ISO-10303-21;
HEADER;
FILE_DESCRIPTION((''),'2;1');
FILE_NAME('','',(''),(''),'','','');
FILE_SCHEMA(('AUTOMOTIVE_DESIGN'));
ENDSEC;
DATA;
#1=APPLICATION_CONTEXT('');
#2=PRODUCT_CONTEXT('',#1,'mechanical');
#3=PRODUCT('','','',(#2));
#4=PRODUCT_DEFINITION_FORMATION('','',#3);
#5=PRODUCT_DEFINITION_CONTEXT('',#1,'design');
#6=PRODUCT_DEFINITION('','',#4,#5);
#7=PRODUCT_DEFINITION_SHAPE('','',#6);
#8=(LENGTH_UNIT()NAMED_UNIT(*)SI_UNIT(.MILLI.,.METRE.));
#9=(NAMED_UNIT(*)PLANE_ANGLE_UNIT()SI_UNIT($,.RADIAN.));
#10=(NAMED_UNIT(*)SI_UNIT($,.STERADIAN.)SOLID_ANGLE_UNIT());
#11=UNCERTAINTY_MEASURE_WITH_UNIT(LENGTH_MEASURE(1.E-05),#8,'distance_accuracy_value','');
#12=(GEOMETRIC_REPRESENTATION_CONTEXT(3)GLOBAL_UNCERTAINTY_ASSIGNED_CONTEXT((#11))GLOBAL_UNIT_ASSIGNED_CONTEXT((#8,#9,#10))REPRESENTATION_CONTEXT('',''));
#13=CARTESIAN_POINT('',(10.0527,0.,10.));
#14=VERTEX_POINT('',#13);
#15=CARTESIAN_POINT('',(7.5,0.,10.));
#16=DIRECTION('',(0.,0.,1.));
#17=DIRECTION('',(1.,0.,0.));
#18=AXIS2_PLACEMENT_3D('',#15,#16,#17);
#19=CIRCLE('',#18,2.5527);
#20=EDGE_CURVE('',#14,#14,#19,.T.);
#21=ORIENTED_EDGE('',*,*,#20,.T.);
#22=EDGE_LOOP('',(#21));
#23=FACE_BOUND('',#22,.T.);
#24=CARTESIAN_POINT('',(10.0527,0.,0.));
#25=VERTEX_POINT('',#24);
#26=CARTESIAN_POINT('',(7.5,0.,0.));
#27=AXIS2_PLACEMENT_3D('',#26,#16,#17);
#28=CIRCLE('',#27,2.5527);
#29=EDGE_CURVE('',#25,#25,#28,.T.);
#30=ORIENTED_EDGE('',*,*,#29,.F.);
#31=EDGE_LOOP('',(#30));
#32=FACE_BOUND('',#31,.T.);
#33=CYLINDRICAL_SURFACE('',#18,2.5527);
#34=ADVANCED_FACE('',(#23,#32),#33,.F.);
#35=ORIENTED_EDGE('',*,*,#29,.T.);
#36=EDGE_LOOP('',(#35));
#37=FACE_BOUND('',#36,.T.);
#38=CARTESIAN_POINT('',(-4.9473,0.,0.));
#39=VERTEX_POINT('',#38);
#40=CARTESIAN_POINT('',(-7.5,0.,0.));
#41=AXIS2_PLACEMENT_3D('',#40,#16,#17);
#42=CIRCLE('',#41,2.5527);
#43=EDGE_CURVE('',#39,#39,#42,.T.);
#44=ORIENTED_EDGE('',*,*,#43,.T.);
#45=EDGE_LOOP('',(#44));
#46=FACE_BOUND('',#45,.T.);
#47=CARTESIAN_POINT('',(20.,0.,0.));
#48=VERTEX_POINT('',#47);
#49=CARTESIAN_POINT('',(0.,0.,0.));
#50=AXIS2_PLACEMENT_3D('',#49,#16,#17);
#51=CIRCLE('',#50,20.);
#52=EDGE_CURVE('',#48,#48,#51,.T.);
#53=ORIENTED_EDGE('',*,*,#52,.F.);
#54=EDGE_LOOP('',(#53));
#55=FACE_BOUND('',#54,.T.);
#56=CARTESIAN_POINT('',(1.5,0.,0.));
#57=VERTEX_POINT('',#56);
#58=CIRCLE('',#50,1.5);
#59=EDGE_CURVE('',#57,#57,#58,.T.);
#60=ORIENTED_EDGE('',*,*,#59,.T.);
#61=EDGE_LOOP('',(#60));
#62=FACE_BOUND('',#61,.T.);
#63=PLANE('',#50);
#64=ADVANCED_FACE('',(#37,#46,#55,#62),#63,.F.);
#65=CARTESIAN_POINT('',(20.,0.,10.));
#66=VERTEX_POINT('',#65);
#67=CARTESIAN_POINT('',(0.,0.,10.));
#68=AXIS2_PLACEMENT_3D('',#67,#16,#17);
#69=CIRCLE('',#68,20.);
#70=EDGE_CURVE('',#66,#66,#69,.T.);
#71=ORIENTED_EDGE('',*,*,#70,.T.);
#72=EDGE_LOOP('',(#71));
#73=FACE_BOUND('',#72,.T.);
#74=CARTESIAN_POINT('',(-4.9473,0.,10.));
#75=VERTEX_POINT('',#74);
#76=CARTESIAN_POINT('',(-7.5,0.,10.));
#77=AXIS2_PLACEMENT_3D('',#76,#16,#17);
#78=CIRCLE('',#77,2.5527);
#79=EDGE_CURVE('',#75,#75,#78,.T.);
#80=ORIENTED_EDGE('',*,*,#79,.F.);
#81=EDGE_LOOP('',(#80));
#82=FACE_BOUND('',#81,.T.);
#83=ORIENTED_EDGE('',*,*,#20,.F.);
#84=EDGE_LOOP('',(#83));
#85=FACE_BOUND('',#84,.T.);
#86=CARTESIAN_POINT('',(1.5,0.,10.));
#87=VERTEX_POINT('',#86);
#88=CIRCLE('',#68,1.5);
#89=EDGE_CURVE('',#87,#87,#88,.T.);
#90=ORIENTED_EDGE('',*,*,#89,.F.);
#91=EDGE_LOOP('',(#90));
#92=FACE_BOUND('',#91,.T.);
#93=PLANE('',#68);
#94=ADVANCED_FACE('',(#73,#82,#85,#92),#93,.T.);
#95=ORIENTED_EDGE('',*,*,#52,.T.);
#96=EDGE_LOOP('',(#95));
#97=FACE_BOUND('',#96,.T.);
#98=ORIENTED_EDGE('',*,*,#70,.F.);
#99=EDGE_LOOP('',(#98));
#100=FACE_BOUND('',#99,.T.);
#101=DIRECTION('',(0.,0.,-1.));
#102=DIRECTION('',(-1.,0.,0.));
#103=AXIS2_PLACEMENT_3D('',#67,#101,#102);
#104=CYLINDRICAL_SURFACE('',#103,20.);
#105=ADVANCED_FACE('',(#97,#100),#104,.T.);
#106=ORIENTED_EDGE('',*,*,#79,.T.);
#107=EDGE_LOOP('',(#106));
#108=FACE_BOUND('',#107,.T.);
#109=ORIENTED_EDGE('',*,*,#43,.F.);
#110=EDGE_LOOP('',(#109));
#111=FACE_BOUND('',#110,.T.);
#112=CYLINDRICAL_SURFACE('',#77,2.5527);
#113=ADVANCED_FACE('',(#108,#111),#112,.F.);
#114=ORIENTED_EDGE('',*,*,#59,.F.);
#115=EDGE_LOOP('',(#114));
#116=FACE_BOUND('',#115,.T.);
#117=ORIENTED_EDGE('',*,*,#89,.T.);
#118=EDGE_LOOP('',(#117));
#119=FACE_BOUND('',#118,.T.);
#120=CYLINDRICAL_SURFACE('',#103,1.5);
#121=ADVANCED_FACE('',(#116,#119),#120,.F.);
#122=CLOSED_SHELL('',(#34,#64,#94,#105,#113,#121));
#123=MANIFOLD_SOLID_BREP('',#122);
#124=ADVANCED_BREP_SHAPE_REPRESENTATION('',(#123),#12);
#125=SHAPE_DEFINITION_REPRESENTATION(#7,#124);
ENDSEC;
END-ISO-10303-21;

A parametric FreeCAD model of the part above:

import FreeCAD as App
import Part
import Sketcher
Q = App.Units.Quantity

doc = App.newDocument("Part")
body = doc.addObject("PartDesign::Body", "Body")

# Sketch on XY plane
sketch1 = doc.addObject("Sketcher::SketchObject", "Sketch")
body.addObject(sketch1)
sketch1.AttachmentSupport = (doc.XY_Plane, [""])
sketch1.MapMode = "FlatFace"
sketch1.addGeometry([
    Part.Circle(App.Vector(0, 0, 0), App.Vector(0, 0, 1), 20),
    Part.Circle(App.Vector(0, 0, 0), App.Vector(0, 0, 1), 1.5),
], False)
sketch1.addConstraint([
    Sketcher.Constraint("Coincident", 0, 3, -1, 1),
    Sketcher.Constraint("Coincident", 1, 3, -1, 1),
    Sketcher.Constraint("Diameter", 0, Q("40 mm")),
    Sketcher.Constraint("Diameter", 1, Q("3 mm")),
])
pad1 = doc.addObject("PartDesign::Pad", "Pad")
body.addObject(pad1)
pad1.Profile = sketch1
pad1.Length = 10

# Sketch on XY plane
sketch2 = doc.addObject("Sketcher::SketchObject", "Sketch001")
body.addObject(sketch2)
sketch2.AttachmentSupport = (doc.XY_Plane, [""])
sketch2.MapMode = "FlatFace"
sketch2.AttachmentOffset = App.Placement(App.Vector(0, 0, 10), App.Rotation())
sketch2.addGeometry([
    Part.Circle(App.Vector(-7.5, 0, 0), App.Vector(0, 0, 1), 2.6),
    Part.Circle(App.Vector(7.5, 0, 0), App.Vector(0, 0, 1), 2.6),
], False)
sketch2.addConstraint([
    Sketcher.Constraint("Equal", 0, 1),
    Sketcher.Constraint("Symmetric", 0, 3, 1, 3, -1, 1),
    Sketcher.Constraint("PointOnObject", 0, 3, -1),
    Sketcher.Constraint("DistanceX", 0, 3, 1, 3, Q("15 mm")),
    Sketcher.Constraint("Diameter", 0, Q("5.1054 mm")),
])
doc.recompute()
hole = doc.addObject("PartDesign::Hole", "Hole")
body.addObject(hole)
hole.Profile = sketch2
hole.ThreadType = "None"
hole.Diameter = 5.1054
hole.DepthType = "ThroughAll"

doc.recompute()
